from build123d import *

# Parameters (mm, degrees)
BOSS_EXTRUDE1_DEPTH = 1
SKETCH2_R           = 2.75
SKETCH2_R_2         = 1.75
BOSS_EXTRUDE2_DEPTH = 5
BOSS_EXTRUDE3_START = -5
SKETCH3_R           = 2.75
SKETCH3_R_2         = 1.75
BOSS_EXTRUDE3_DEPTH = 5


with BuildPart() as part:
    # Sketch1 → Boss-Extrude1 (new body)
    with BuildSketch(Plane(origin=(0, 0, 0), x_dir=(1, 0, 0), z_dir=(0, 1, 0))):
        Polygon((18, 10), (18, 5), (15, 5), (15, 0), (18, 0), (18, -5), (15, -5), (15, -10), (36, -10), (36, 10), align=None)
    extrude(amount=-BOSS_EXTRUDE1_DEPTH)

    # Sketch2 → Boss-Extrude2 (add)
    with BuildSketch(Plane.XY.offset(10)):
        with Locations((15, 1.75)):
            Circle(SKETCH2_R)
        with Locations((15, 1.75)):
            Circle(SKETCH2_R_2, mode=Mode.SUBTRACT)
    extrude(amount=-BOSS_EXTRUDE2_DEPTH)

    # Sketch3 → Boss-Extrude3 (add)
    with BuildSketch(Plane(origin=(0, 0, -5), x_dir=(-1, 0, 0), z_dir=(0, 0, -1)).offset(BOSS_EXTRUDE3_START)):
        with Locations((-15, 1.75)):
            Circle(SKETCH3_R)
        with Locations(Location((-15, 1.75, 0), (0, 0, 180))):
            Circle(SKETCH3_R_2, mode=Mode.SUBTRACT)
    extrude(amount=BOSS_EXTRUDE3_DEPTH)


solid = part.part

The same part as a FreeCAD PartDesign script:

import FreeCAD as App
import Part
import Sketcher
from FreeCAD import Vector

doc = App.newDocument("Part")
body = doc.addObject("PartDesign::Body", "Body")

sketch1 = body.newObject("Sketcher::SketchObject", "Sketch")
sketch1.AttachmentSupport = (doc.getObject("XZ_Plane"), [""])
sketch1.MapMode = "FlatFace"
sketch1.addGeometry(Part.LineSegment(Vector(18, -10, 0), Vector(18, -5, 0)), False)
sketch1.addGeometry(Part.LineSegment(Vector(18, -5, 0), Vector(15, -5, 0)), False)
sketch1.addGeometry(Part.LineSegment(Vector(15, -5, 0), Vector(15, 0, 0)), False)
sketch1.addGeometry(Part.LineSegment(Vector(15, 0, 0), Vector(18, 0, 0)), False)
sketch1.addGeometry(Part.LineSegment(Vector(18, 0, 0), Vector(18, 5, 0)), False)
sketch1.addGeometry(Part.LineSegment(Vector(18, 5, 0), Vector(15, 5, 0)), False)
sketch1.addGeometry(Part.LineSegment(Vector(15, 5, 0), Vector(15, 10, 0)), False)
sketch1.addGeometry(Part.LineSegment(Vector(15, 10, 0), Vector(36, 10, 0)), False)
sketch1.addGeometry(Part.LineSegment(Vector(36, 10, 0), Vector(36, -10, 0)), False)
sketch1.addGeometry(Part.LineSegment(Vector(36, -10, 0), Vector(18, -10, 0)), False)
sketch1.addConstraint(Sketcher.Constraint("Coincident", 0, 2, 1, 1))
sketch1.addConstraint(Sketcher.Constraint("Coincident", 1, 2, 2, 1))
sketch1.addConstraint(Sketcher.Constraint("Coincident", 2, 2, 3, 1))
sketch1.addConstraint(Sketcher.Constraint("Coincident", 3, 2, 4, 1))
sketch1.addConstraint(Sketcher.Constraint("Coincident", 4, 2, 5, 1))
sketch1.addConstraint(Sketcher.Constraint("Coincident", 5, 2, 6, 1))
sketch1.addConstraint(Sketcher.Constraint("Coincident", 6, 2, 7, 1))
sketch1.addConstraint(Sketcher.Constraint("Coincident", 7, 2, 8, 1))
sketch1.addConstraint(Sketcher.Constraint("Coincident", 8, 2, 9, 1))
sketch1.addConstraint(Sketcher.Constraint("Coincident", 9, 2, 0, 1))
sketch1.addConstraint(Sketcher.Constraint("Vertical", 0))
sketch1.addConstraint(Sketcher.Constraint("Horizontal", 1))
sketch1.addConstraint(Sketcher.Constraint("Vertical", 2))
sketch1.addConstraint(Sketcher.Constraint("Horizontal", 3))
sketch1.addConstraint(Sketcher.Constraint("Vertical", 4))
sketch1.addConstraint(Sketcher.Constraint("Horizontal", 5))
sketch1.addConstraint(Sketcher.Constraint("Vertical", 6))
sketch1.addConstraint(Sketcher.Constraint("Horizontal", 7))
sketch1.addConstraint(Sketcher.Constraint("Vertical", 8))
sketch1.addConstraint(Sketcher.Constraint("Horizontal", 9))
sketch1.addConstraint(Sketcher.Constraint("Symmetric", 0, 2, 4, 2, -1))
sketch1.addConstraint(Sketcher.Constraint("PointOnObject", 2, 2, -1))
sketch1.addConstraint(Sketcher.Constraint("Vertical", 2, 2, 5, 2))
sketch1.addConstraint(Sketcher.Constraint("Equal", 0, 2))
sketch1.addConstraint(Sketcher.Constraint("Equal", 4, 6))
sketch1.addConstraint(Sketcher.Constraint("DistanceX", 1, 2, 1, 1, 3.0))
sketch1.addConstraint(Sketcher.Constraint("DistanceX", 7, 1, 7, 2, 21.0))
sketch1.addConstraint(Sketcher.Constraint("DistanceY", 0, 1, 0, 2, 5.0))
sketch1.addConstraint(Sketcher.Constraint("DistanceX", -1, 1, 0, 2, 18.0))
pad1 = body.newObject("PartDesign::Pad", "Pad")
pad1.Profile = sketch1
pad1.Length = 1

sketch2 = body.newObject("Sketcher::SketchObject", "Sketch001")
sketch2.AttachmentSupport = (doc.getObject("XY_Plane"), [""])
sketch2.MapMode = "FlatFace"
sketch2.AttachmentOffset = App.Placement(Vector(0, 0, 10), App.Rotation())
sketch2.addGeometry(Part.Circle(Vector(15, 1.8, 0), Vector(0, 0, 1), 2.8), False)
sketch2.addGeometry(Part.Circle(Vector(15, 1.8, 0), Vector(0, 0, 1), 1.8), False)
sketch2.addConstraint(Sketcher.Constraint("Coincident", 1, 3, 0, 3))
sketch2.addConstraint(Sketcher.Constraint("Diameter", 0, 5.5))
sketch2.addConstraint(Sketcher.Constraint("Diameter", 1, 3.5))
sketch2.addConstraint(Sketcher.Constraint("DistanceX", -1, 1, 0, 3, 15.0))
sketch2.addConstraint(Sketcher.Constraint("DistanceY", -1, 1, 0, 3, 1.75))
pad2 = body.newObject("PartDesign::Pad", "Pad001")
pad2.Profile = sketch2
pad2.Length = 5
pad2.Reversed = True

sketch3 = body.newObject("Sketcher::SketchObject", "Sketch002")
sketch3.AttachmentSupport = (doc.getObject("XY_Plane"), [""])
sketch3.MapMode = "FlatFace"
sketch3.addGeometry(Part.Circle(Vector(15, 1.8, 0), Vector(0, 0, 1), 2.8), False)
sketch3.addGeometry(Part.Circle(Vector(15, 1.8, 0), Vector(0, 0, 1), 1.8), False)
sketch3.addConstraint(Sketcher.Constraint("Coincident", 1, 3, 0, 3))
sketch3.addConstraint(Sketcher.Constraint("Diameter", 0, 5.5))
sketch3.addConstraint(Sketcher.Constraint("Diameter", 1, 3.5))
sketch3.addConstraint(Sketcher.Constraint("DistanceX", -1, 1, 0, 3, 15.0))
sketch3.addConstraint(Sketcher.Constraint("DistanceY", -1, 1, 0, 3, 1.75))
pad3 = body.newObject("PartDesign::Pad", "Pad002")
pad3.Profile = sketch3
pad3.Length = 5
pad3.Reversed = True

doc.recompute()
